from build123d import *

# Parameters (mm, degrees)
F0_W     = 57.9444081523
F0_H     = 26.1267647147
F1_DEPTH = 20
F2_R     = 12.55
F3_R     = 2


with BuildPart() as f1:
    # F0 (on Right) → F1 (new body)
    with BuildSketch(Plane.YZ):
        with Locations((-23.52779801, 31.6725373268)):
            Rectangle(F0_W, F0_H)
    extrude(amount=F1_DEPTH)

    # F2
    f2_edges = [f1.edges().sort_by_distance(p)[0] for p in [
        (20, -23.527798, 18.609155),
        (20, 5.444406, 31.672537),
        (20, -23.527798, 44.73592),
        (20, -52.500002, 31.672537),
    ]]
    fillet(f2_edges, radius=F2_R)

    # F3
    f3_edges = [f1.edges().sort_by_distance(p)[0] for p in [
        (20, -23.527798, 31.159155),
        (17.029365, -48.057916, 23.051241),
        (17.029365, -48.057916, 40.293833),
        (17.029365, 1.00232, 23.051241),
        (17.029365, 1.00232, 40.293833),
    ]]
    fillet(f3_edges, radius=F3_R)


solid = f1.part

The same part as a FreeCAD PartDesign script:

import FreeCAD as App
import Part
import Sketcher
from FreeCAD import Vector
Q = App.Units.Quantity


def edges_at(feature, points):
    """Names of the edges that pass closest to the given points."""
    edges = feature.Shape.Edges
    near = lambda p: min(range(len(edges)), key=lambda i: edges[i].distToShape(Part.Vertex(*p))[0])
    return sorted({f"Edge{near(p) + 1}" for p in points})


def add_polygon(sketch, points):
    """Adds a closed chain of lines whose ends are joined by coincident constraints."""
    first, n = sketch.GeometryCount, len(points)
    for a, b in zip(points, points[1:] + points[:1]):
        sketch.addGeometry(Part.LineSegment(App.Vector(*a, 0), App.Vector(*b, 0)), False)
    for i in range(n):
        sketch.addConstraint(Sketcher.Constraint("Coincident", first + i, 2, first + (i + 1) % n, 1))

doc = App.newDocument("Part")
body = doc.addObject("PartDesign::Body", "Body")

# Sketch on YZ plane
sketch1 = body.newObject("Sketcher::SketchObject", "Sketch")
sketch1.AttachmentSupport = (doc.getObject("YZ_Plane"), [""])
sketch1.MapMode = "FlatFace"
add_polygon(sketch1, [(-53, 45), (-53, 19), (5, 19), (5, 45)])  # lines 0-3
sketch1.addConstraint(Sketcher.Constraint("Vertical", 0))
sketch1.addConstraint(Sketcher.Constraint("Horizontal", 1))
sketch1.addConstraint(Sketcher.Constraint("Vertical", 2))
sketch1.addConstraint(Sketcher.Constraint("Horizontal", 3))
sketch1.addConstraint(Sketcher.Constraint("DistanceX", 1, 1, 1, 2, Q("57.944408 mm")))
sketch1.addConstraint(Sketcher.Constraint("DistanceY", 0, 2, 0, 1, Q("26.126765 mm")))
sketch1.addConstraint(Sketcher.Constraint("DistanceY", -1, 1, 2, 2, Q("44.73592 mm")))
sketch1.addConstraint(Sketcher.Constraint("DistanceX", 0, 2, -1, 1, Q("52.500002 mm")))
pad1 = body.newObject("PartDesign::Pad", "Pad")
pad1.Profile = sketch1
pad1.Length = 20
doc.recompute()

fillet = body.newObject("PartDesign::Fillet", "Fillet")
fillet.Base = (pad1, edges_at(pad1, [
    (20, -23.528, 18.609),
    (20, 5.444, 31.673),
    (20, -23.528, 44.736),
    (20, -52.5, 31.673),
]))
fillet.Radius = 12.55
doc.recompute()

fillet2 = body.newObject("PartDesign::Fillet", "Fillet001")
fillet2.Base = (fillet, edges_at(fillet, [
    (20, -23.528, 31.159),
    (17.029, -48.058, 23.051),
    (17.029, -48.058, 40.294),
    (17.029, 1.002, 23.051),
    (17.029, 1.002, 40.294),
]))
fillet2.Radius = 2

doc.recompute()
